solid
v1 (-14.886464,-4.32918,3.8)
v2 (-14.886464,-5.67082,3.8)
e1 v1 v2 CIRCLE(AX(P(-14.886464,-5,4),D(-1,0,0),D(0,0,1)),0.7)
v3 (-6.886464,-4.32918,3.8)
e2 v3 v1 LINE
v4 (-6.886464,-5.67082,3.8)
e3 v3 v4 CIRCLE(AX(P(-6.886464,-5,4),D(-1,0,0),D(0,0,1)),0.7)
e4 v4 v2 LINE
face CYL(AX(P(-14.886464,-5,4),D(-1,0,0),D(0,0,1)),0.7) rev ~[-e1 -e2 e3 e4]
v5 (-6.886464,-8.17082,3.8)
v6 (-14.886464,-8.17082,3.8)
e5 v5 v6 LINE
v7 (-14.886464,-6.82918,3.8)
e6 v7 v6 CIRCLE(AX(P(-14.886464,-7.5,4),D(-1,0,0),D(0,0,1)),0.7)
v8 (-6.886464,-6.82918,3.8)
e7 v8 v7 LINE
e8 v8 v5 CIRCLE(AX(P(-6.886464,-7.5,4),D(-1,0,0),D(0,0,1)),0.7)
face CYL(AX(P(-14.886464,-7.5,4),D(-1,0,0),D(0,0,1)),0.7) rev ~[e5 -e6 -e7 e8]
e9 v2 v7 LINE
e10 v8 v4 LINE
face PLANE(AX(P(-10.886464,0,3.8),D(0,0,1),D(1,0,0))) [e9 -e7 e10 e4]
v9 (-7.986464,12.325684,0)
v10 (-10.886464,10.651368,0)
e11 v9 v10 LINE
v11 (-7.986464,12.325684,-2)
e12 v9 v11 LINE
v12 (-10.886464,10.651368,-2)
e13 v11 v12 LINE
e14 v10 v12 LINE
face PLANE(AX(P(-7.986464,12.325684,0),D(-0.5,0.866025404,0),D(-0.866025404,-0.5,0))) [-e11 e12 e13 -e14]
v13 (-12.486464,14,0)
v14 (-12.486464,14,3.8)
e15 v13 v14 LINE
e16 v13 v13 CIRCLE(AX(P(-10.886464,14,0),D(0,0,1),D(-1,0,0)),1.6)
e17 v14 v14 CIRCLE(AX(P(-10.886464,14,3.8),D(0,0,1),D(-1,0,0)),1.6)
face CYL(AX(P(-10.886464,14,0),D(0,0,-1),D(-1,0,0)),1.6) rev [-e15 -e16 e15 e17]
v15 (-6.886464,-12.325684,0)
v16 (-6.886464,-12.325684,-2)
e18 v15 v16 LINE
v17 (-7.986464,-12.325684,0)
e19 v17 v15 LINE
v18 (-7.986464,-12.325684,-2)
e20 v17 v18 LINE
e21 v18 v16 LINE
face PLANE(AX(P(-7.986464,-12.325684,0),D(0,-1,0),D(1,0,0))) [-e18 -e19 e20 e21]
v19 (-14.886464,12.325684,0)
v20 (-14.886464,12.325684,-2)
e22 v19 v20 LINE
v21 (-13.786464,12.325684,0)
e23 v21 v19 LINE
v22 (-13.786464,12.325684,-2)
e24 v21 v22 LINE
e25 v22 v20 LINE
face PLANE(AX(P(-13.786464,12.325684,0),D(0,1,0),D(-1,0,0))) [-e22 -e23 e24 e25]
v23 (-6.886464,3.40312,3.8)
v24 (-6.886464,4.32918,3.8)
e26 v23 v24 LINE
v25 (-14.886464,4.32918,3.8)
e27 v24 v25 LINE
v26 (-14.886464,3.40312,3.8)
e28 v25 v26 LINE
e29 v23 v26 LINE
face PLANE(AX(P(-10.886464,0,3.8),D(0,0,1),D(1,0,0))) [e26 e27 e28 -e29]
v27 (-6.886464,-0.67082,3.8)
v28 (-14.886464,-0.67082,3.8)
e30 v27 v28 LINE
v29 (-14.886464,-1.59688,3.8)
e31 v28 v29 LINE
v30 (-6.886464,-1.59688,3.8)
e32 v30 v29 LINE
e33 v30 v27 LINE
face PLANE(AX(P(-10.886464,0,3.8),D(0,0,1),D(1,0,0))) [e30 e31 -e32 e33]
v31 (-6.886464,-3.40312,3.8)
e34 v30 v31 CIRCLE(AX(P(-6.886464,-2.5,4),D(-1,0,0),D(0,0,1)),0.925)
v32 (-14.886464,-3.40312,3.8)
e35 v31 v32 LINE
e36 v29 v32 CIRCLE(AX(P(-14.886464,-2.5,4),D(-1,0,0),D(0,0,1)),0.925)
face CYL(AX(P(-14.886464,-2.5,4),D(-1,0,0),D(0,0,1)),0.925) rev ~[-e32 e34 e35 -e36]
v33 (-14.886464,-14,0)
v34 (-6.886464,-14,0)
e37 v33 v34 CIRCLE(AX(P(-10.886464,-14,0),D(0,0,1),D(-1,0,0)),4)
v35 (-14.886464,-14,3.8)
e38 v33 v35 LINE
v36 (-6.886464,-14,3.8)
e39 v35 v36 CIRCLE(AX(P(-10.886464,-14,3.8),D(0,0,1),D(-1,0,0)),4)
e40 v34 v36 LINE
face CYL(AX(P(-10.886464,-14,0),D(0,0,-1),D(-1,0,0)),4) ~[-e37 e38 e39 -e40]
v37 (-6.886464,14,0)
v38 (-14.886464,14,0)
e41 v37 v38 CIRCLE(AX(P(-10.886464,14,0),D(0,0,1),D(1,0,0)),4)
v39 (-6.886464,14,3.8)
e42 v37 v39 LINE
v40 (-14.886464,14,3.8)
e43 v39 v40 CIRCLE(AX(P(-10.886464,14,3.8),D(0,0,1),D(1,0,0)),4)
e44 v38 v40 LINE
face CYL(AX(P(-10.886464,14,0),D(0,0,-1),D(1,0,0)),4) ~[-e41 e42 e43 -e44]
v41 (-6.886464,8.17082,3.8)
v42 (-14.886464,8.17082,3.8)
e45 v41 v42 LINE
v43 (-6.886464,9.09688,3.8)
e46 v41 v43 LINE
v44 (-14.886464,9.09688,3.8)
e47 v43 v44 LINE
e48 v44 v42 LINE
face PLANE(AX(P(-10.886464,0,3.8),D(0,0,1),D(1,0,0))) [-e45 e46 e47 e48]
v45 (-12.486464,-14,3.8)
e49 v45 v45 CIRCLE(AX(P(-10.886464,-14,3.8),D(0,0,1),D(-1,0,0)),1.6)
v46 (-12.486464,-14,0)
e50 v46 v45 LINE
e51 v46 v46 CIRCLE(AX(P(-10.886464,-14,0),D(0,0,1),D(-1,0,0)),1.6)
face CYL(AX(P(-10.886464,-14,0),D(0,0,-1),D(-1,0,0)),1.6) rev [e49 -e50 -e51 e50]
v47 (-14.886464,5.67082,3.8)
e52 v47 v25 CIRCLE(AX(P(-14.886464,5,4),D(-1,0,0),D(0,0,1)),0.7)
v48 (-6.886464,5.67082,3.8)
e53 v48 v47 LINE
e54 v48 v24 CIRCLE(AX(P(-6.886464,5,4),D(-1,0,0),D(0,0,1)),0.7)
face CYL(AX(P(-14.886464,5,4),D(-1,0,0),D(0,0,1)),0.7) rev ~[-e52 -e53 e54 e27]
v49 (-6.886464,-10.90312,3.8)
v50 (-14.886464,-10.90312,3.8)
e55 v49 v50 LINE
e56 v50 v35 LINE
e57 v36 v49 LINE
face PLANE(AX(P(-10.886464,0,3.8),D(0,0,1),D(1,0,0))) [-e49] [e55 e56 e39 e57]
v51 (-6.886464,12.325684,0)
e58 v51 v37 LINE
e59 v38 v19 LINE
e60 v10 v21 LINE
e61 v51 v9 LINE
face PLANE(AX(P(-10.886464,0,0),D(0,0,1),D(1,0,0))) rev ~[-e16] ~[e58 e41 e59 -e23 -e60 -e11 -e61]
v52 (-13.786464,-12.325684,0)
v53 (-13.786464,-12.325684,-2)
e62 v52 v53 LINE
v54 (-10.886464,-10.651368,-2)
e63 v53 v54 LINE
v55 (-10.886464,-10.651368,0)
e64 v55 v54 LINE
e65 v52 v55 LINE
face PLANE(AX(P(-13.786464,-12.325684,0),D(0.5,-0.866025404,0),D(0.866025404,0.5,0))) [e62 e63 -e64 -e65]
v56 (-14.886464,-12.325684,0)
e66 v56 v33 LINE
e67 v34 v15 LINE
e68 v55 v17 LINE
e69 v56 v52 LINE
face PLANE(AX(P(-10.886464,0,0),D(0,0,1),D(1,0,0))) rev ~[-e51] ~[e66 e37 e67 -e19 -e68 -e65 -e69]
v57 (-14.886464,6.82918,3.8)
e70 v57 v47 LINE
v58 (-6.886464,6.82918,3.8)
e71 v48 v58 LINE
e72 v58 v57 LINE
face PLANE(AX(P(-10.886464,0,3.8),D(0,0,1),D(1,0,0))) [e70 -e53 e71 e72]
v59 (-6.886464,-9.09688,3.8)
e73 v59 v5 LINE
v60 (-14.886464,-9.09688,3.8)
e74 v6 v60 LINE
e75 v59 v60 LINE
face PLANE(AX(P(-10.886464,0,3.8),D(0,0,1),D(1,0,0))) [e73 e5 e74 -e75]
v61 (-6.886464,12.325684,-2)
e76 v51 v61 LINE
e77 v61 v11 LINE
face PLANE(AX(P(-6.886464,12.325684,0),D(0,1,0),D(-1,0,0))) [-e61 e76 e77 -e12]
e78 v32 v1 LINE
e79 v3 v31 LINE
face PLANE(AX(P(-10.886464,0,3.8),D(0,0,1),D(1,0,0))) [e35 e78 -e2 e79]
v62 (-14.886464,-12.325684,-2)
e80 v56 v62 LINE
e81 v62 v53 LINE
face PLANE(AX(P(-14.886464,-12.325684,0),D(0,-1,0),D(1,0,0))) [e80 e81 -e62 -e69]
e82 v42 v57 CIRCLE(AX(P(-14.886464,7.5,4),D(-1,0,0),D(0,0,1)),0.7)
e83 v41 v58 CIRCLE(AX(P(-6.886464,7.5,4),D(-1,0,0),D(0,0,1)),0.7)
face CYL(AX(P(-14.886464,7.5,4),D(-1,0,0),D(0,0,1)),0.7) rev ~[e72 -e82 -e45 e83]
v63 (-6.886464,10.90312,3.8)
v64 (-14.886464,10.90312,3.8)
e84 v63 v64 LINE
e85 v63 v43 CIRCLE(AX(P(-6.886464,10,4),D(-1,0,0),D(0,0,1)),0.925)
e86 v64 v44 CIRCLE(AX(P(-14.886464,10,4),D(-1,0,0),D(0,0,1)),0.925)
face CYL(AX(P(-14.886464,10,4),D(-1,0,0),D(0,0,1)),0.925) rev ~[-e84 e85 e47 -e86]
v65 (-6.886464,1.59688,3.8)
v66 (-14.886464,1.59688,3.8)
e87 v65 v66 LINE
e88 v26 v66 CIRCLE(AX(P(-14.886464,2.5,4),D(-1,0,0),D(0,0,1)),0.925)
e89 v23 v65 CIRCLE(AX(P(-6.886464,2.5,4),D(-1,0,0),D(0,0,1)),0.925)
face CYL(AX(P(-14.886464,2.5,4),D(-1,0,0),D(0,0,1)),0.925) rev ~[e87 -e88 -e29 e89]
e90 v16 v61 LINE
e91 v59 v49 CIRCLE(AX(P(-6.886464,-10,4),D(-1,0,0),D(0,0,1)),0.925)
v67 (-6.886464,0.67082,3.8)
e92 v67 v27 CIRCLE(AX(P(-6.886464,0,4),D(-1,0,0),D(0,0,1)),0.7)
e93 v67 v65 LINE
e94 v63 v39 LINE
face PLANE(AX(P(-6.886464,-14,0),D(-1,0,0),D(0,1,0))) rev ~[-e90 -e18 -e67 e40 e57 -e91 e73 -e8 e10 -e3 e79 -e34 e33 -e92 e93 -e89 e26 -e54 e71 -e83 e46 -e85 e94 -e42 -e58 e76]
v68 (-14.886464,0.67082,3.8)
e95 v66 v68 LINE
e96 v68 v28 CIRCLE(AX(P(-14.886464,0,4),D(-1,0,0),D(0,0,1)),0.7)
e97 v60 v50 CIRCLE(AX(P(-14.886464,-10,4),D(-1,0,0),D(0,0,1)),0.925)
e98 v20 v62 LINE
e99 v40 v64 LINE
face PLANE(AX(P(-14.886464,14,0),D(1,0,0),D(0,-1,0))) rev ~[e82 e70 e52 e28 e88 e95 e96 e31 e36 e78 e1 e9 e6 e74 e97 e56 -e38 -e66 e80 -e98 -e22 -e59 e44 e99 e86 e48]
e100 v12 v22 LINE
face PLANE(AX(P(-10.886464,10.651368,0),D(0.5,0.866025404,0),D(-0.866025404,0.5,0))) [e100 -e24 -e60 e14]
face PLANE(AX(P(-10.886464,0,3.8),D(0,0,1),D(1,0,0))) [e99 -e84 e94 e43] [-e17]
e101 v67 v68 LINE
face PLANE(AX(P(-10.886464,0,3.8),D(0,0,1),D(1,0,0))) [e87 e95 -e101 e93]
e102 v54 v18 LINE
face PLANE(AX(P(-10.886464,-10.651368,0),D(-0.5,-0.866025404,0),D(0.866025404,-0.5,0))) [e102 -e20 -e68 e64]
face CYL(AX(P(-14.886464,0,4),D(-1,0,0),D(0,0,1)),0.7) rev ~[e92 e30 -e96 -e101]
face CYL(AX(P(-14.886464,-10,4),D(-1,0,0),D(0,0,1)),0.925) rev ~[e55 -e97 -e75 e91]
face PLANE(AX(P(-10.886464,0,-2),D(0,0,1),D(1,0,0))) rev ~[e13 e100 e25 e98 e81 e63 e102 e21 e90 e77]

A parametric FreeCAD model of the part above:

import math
import FreeCAD as App
import Part
import Sketcher
from FreeCAD import Vector
Q = App.Units.Quantity


def add_polygon(sketch, points):
    """Adds a closed chain of lines whose ends are joined by coincident constraints."""
    first, n = sketch.GeometryCount, len(points)
    for a, b in zip(points, points[1:] + points[:1]):
        sketch.addGeometry(Part.LineSegment(App.Vector(*a, 0), App.Vector(*b, 0)), False)
    for i in range(n):
        sketch.addConstraint(Sketcher.Constraint("Coincident", first + i, 2, first + (i + 1) % n, 1))

doc = App.newDocument("Part")
params = doc.addObject("Spreadsheet::Sheet", "Params")
for row, (alias, value) in enumerate([
    ("sketch1_radius", "4 mm"),
    ("sketch1_diameter", "3.2 mm"),
    ("sketch1_height", "28 mm"),
    ("pad1_length", "3.8 mm"),
    ("sketch2_diameter", "1.85 mm"),
    ("pocket1_length", "8 mm"),
    ("sketch3_diameter", "1.4 mm"),
    ("pocket2_length", "8 mm"),
    ("sketch4_diameter", "1.4 mm"),
    ("pocket3_length", "8 mm"),
    ("sketch5_diameter", "1.85 mm"),
    ("pocket4_length", "8 mm"),
    ("sketch6_diameter", "1.4 mm"),
    ("pocket5_length", "8 mm"),
    ("sketch7_diameter", "1.4 mm"),
    ("pocket6_length", "8 mm"),
    ("sketch8_diameter", "1.85 mm"),
    ("pocket7_length", "8 mm"),
    ("sketch9_diameter", "1.4 mm"),
    ("pocket8_length", "8 mm"),
    ("sketch10_diameter", "1.85 mm"),
    ("pocket9_length", "8 mm"),
    ("sketch11_width", "1.1 mm"),
    ("pad2_length", "2 mm"),
], start=1):
    params.set(f"A{row}", alias)
    params.set(f"B{row}", "=" + value)
    params.setAlias(f"B{row}", alias)

body = doc.addObject("PartDesign::Body", "Body")

sketch1 = doc.addObject("Sketcher::SketchObject", "Sketch")
body.addObject(sketch1)
sketch1.AttachmentSupport = (doc.XY_Plane, [""])
sketch1.MapMode = "FlatFace"
sketch1.addGeometry(Part.LineSegment(Vector(-14.9, 14, 0), Vector(-14.9, -14, 0)), False)
sketch1.addGeometry(Part.ArcOfCircle(Part.Circle(Vector(-10.9, -14, 0), Vector(0, 0, 1), 4), math.radians(180), math.radians(360)), False)
sketch1.addGeometry(Part.LineSegment(Vector(-6.9, -14, 0), Vector(-6.9, 14, 0)), False)
sketch1.addGeometry(Part.ArcOfCircle(Part.Circle(Vector(-10.9, 14, 0), Vector(0, 0, 1), 4), math.radians(0), math.radians(180)), False)
sketch1.addGeometry(Part.Circle(Vector(-10.9, -14, 0), Vector(0, 0, 1), 1.6), False)
sketch1.addGeometry(Part.Circle(Vector(-10.9, 14, 0), Vector(0, 0, 1), 1.6), False)
sketch1.addConstraint(Sketcher.Constraint("Tangent", 0, 2, 1, 1))
sketch1.addConstraint(Sketcher.Constraint("Tangent", 1, 2, 2, 1))
sketch1.addConstraint(Sketcher.Constraint("Tangent", 2, 2, 3, 1))
sketch1.addConstraint(Sketcher.Constraint("Tangent", 3, 2, 0, 1))
sketch1.addConstraint(Sketcher.Constraint("Vertical", 0))
sketch1.addConstraint(Sketcher.Constraint("Vertical", 2))
sketch1.addConstraint(Sketcher.Constraint("Coincident", 4, 3, 1, 3))
sketch1.addConstraint(Sketcher.Constraint("Coincident", 5, 3, 3, 3))
sketch1.addConstraint(Sketcher.Constraint("Equal", 4, 5))
sketch1.addConstraint(Sketcher.Constraint("Radius", 1, Q("4 mm")))
sketch1.addConstraint(Sketcher.Constraint("Diameter", 4, Q("3.2 mm")))
sketch1.addConstraint(Sketcher.Constraint("DistanceY", 0, 2, 0, 1, Q("28 mm")))
sketch1.addConstraint(Sketcher.Constraint("DistanceY", 1, 3, -1, 1, Q("14 mm")))
sketch1.addConstraint(Sketcher.Constraint("DistanceX", 1, 3, -1, 1, Q("10.886464 mm")))
sketch1.setExpression("Constraints[9]", "Params.sketch1_radius")
sketch1.setExpression("Constraints[10]", "Params.sketch1_diameter")
sketch1.setExpression("Constraints[11]", "Params.sketch1_height")
pad1 = doc.addObject("PartDesign::Pad", "Pad")
body.addObject(pad1)
pad1.Profile = sketch1
pad1.setExpression("Length", "Params.pad1_length")

sketch2 = doc.addObject("Sketcher::SketchObject", "Sketch001")
body.addObject(sketch2)
sketch2.AttachmentSupport = (doc.YZ_Plane, [""])
sketch2.MapMode = "FlatFace"
sketch2.AttachmentOffset = App.Placement(Vector(0, 0, -14.886464), App.Rotation())
sketch2.addGeometry(Part.Circle(Vector(-10, 4, 0), Vector(0, 0, 1), 0.9), False)
sketch2.addConstraint(Sketcher.Constraint("Diameter", 0, Q("1.85 mm")))
sketch2.addConstraint(Sketcher.Constraint("DistanceX", 0, 3, -1, 1, Q("10 mm")))
sketch2.addConstraint(Sketcher.Constraint("DistanceY", -1, 1, 0, 3, Q("4 mm")))
sketch2.setExpression("Constraints[0]", "Params.sketch2_diameter")
pocket1 = doc.addObject("PartDesign::Pocket", "Pocket")
body.addObject(pocket1)
pocket1.Profile = sketch2
pocket1.setExpression("Length", "Params.pocket1_length")
pocket1.Reversed = True

sketch3 = doc.addObject("Sketcher::SketchObject", "Sketch002")
body.addObject(sketch3)
sketch3.AttachmentSupport = (doc.YZ_Plane, [""])
sketch3.MapMode = "FlatFace"
sketch3.AttachmentOffset = App.Placement(Vector(0, 0, -14.886464), App.Rotation())
sketch3.addGeometry(Part.Circle(Vector(-7.5, 4, 0), Vector(0, 0, 1), 0.7), False)
sketch3.addConstraint(Sketcher.Constraint("Diameter", 0, Q("1.4 mm")))
sketch3.addConstraint(Sketcher.Constraint("DistanceY", -1, 1, 0, 3, Q("4 mm")))
sketch3.addConstraint(Sketcher.Constraint("DistanceX", 0, 3, -1, 1, Q("7.5 mm")))
sketch3.setExpression("Constraints[0]", "Params.sketch3_diameter")
pocket2 = doc.addObject("PartDesign::Pocket", "Pocket001")
body.addObject(pocket2)
pocket2.Profile = sketch3
pocket2.setExpression("Length", "Params.pocket2_length")
pocket2.Reversed = True

sketch4 = doc.addObject("Sketcher::SketchObject", "Sketch003")
body.addObject(sketch4)
sketch4.AttachmentSupport = (doc.YZ_Plane, [""])
sketch4.MapMode = "FlatFace"
sketch4.AttachmentOffset = App.Placement(Vector(0, 0, -14.886464), App.Rotation())
sketch4.addGeometry(Part.Circle(Vector(-5, 4, 0), Vector(0, 0, 1), 0.7), False)
sketch4.addConstraint(Sketcher.Constraint("Diameter", 0, Q("1.4 mm")))
sketch4.addConstraint(Sketcher.Constraint("DistanceX", 0, 3, -1, 1, Q("5 mm")))
sketch4.addConstraint(Sketcher.Constraint("DistanceY", -1, 1, 0, 3, Q("4 mm")))
sketch4.setExpression("Constraints[0]", "Params.sketch4_diameter")
pocket3 = doc.addObject("PartDesign::Pocket", "Pocket002")
body.addObject(pocket3)
pocket3.Profile = sketch4
pocket3.setExpression("Length", "Params.pocket3_length")
pocket3.Reversed = True

sketch5 = doc.addObject("Sketcher::SketchObject", "Sketch004")
body.addObject(sketch5)
sketch5.AttachmentSupport = (doc.YZ_Plane, [""])
sketch5.MapMode = "FlatFace"
sketch5.AttachmentOffset = App.Placement(Vector(0, 0, -14.886464), App.Rotation())
sketch5.addGeometry(Part.Circle(Vector(10, 4, 0), Vector(0, 0, 1), 0.9), False)
sketch5.addConstraint(Sketcher.Constraint("Diameter", 0, Q("1.85 mm")))
sketch5.addConstraint(Sketcher.Constraint("DistanceX", -1, 1, 0, 3, Q("10 mm")))
sketch5.addConstraint(Sketcher.Constraint("DistanceY", -1, 1, 0, 3, Q("4 mm")))
sketch5.setExpression("Constraints[0]", "Params.sketch5_diameter")
pocket4 = doc.addObject("PartDesign::Pocket", "Pocket003")
body.addObject(pocket4)
pocket4.Profile = sketch5
pocket4.setExpression("Length", "Params.pocket4_length")
pocket4.Reversed = True

sketch6 = doc.addObject("Sketcher::SketchObject", "Sketch005")
body.addObject(sketch6)
sketch6.AttachmentSupport = (doc.YZ_Plane, [""])
sketch6.MapMode = "FlatFace"
sketch6.AttachmentOffset = App.Placement(Vector(0, 0, -14.886464), App.Rotation())
sketch6.addGeometry(Part.Circle(Vector(7.5, 4, 0), Vector(0, 0, 1), 0.7), False)
sketch6.addConstraint(Sketcher.Constraint("Diameter", 0, Q("1.4 mm")))
sketch6.addConstraint(Sketcher.Constraint("DistanceY", -1, 1, 0, 3, Q("4 mm")))
sketch6.addConstraint(Sketcher.Constraint("DistanceX", -1, 1, 0, 3, Q("7.5 mm")))
sketch6.setExpression("Constraints[0]", "Params.sketch6_diameter")
pocket5 = doc.addObject("PartDesign::Pocket", "Pocket004")
body.addObject(pocket5)
pocket5.Profile = sketch6
pocket5.setExpression("Length", "Params.pocket5_length")
pocket5.Reversed = True

sketch7 = doc.addObject("Sketcher::SketchObject", "Sketch006")
body.addObject(sketch7)
sketch7.AttachmentSupport = (doc.YZ_Plane, [""])
sketch7.MapMode = "FlatFace"
sketch7.AttachmentOffset = App.Placement(Vector(0, 0, -14.886464), App.Rotation())
sketch7.addGeometry(Part.Circle(Vector(5, 4, 0), Vector(0, 0, 1), 0.7), False)
sketch7.addConstraint(Sketcher.Constraint("Diameter", 0, Q("1.4 mm")))
sketch7.addConstraint(Sketcher.Constraint("DistanceX", -1, 1, 0, 3, Q("5 mm")))
sketch7.addConstraint(Sketcher.Constraint("DistanceY", -1, 1, 0, 3, Q("4 mm")))
sketch7.setExpression("Constraints[0]", "Params.sketch7_diameter")
pocket6 = doc.addObject("PartDesign::Pocket", "Pocket005")
body.addObject(pocket6)
pocket6.Profile = sketch7
pocket6.setExpression("Length", "Params.pocket6_length")
pocket6.Reversed = True

sketch8 = doc.addObject("Sketcher::SketchObject", "Sketch007")
body.addObject(sketch8)
sketch8.AttachmentSupport = (doc.YZ_Plane, [""])
sketch8.MapMode = "FlatFace"
sketch8.AttachmentOffset = App.Placement(Vector(0, 0, -14.886464), App.Rotation())
sketch8.addGeometry(Part.Circle(Vector(2.5, 4, 0), Vector(0, 0, 1), 0.9), False)
sketch8.addConstraint(Sketcher.Constraint("Diameter", 0, Q("1.85 mm")))
sketch8.addConstraint(Sketcher.Constraint("DistanceY", -1, 1, 0, 3, Q("4 mm")))
sketch8.addConstraint(Sketcher.Constraint("DistanceX", -1, 1, 0, 3, Q("2.5 mm")))
sketch8.setExpression("Constraints[0]", "Params.sketch8_diameter")
pocket7 = doc.addObject("PartDesign::Pocket", "Pocket006")
body.addObject(pocket7)
pocket7.Profile = sketch8
pocket7.setExpression("Length", "Params.pocket7_length")
pocket7.Reversed = True

sketch9 = doc.addObject("Sketcher::SketchObject", "Sketch008")
body.addObject(sketch9)
sketch9.AttachmentSupport = (doc.YZ_Plane, [""])
sketch9.MapMode = "FlatFace"
sketch9.AttachmentOffset = App.Placement(Vector(0, 0, -14.886464), App.Rotation())
sketch9.addGeometry(Part.Circle(Vector(0, 4, 0), Vector(0, 0, 1), 0.7), False)
sketch9.addConstraint(Sketcher.Constraint("PointOnObject", 0, 3, -2))
sketch9.addConstraint(Sketcher.Constraint("Diameter", 0, Q("1.4 mm")))
sketch9.addConstraint(Sketcher.Constraint("DistanceY", -1, 1, 0, 3, Q("4 mm")))
sketch9.setExpression("Constraints[1]", "Params.sketch9_diameter")
pocket8 = doc.addObject("PartDesign::Pocket", "Pocket007")
body.addObject(pocket8)
pocket8.Profile = sketch9
pocket8.setExpression("Length", "Params.pocket8_length")
pocket8.Reversed = True

sketch10 = doc.addObject("Sketcher::SketchObject", "Sketch009")
body.addObject(sketch10)
sketch10.AttachmentSupport = (doc.YZ_Plane, [""])
sketch10.MapMode = "FlatFace"
sketch10.AttachmentOffset = App.Placement(Vector(0, 0, -14.886464), App.Rotation())
sketch10.addGeometry(Part.Circle(Vector(-2.5, 4, 0), Vector(0, 0, 1), 0.9), False)
sketch10.addConstraint(Sketcher.Constraint("Diameter", 0, Q("1.85 mm")))
sketch10.addConstraint(Sketcher.Constraint("DistanceY", -1, 1, 0, 3, Q("4 mm")))
sketch10.addConstraint(Sketcher.Constraint("DistanceX", 0, 3, -1, 1, Q("2.5 mm")))
sketch10.setExpression("Constraints[0]", "Params.sketch10_diameter")
pocket9 = doc.addObject("PartDesign::Pocket", "Pocket008")
body.addObject(pocket9)
pocket9.Profile = sketch10
pocket9.setExpression("Length", "Params.pocket9_length")
pocket9.Reversed = True

sketch11 = doc.addObject("Sketcher::SketchObject", "Sketch010")
body.addObject(sketch11)
sketch11.AttachmentSupport = (doc.XY_Plane, [""])
sketch11.MapMode = "FlatFace"
add_polygon(sketch11, [(-13.8, 12.3), (-10.9, 10.7), (-8, 12.3), (-6.9, 12.3), (-6.9, -12.3), (-8, -12.3), (-10.9, -10.7), (-13.8, -12.3), (-14.9, -12.3), (-14.9, 12.3)])
sketch11.addConstraint(Sketcher.Constraint("Horizontal", 2))
sketch11.addConstraint(Sketcher.Constraint("Vertical", 3))
sketch11.addConstraint(Sketcher.Constraint("Horizontal", 4))
sketch11.addConstraint(Sketcher.Constraint("Horizontal", 7))
sketch11.addConstraint(Sketcher.Constraint("Vertical", 8))
sketch11.addConstraint(Sketcher.Constraint("Horizontal", 9))
sketch11.addConstraint(Sketcher.Constraint("Symmetric", 1, 2, 4, 2, -1))
sketch11.addConstraint(Sketcher.Constraint("Symmetric", 0, 2, 5, 2, -1))
sketch11.addConstraint(Sketcher.Constraint("Symmetric", 6, 2, 9, 2, -1))
sketch11.addConstraint(Sketcher.Constraint("Parallel", 0, 5))
sketch11.addConstraint(Sketcher.Constraint("Horizontal", 4, 2, 6, 2))
sketch11.addConstraint(Sketcher.Constraint("Equal", 4, 7))
sketch11.addConstraint(Sketcher.Constraint("Angle", 0, Q("-30 deg")))
sketch11.addConstraint(Sketcher.Constraint("DistanceX", 2, 1, 2, 2, Q("1.1 mm")))
sketch11.addConstraint(Sketcher.Constraint("DistanceX", 0, 2, 2, 2, Q("4 mm")))
sketch11.addConstraint(Sketcher.Constraint("DistanceY", 3, 2, 3, 1, Q("24.651368 mm")))
sketch11.addConstraint(Sketcher.Constraint("DistanceX", 0, 2, -1, 1, Q("10.886464 mm")))
sketch11.setExpression("Constraints[23]", "Params.sketch11_width")
pad2 = doc.addObject("PartDesign::Pad", "Pad001")
body.addObject(pad2)
pad2.Profile = sketch11
pad2.setExpression("Length", "Params.pad2_length")
pad2.Reversed = True

doc.recompute()
